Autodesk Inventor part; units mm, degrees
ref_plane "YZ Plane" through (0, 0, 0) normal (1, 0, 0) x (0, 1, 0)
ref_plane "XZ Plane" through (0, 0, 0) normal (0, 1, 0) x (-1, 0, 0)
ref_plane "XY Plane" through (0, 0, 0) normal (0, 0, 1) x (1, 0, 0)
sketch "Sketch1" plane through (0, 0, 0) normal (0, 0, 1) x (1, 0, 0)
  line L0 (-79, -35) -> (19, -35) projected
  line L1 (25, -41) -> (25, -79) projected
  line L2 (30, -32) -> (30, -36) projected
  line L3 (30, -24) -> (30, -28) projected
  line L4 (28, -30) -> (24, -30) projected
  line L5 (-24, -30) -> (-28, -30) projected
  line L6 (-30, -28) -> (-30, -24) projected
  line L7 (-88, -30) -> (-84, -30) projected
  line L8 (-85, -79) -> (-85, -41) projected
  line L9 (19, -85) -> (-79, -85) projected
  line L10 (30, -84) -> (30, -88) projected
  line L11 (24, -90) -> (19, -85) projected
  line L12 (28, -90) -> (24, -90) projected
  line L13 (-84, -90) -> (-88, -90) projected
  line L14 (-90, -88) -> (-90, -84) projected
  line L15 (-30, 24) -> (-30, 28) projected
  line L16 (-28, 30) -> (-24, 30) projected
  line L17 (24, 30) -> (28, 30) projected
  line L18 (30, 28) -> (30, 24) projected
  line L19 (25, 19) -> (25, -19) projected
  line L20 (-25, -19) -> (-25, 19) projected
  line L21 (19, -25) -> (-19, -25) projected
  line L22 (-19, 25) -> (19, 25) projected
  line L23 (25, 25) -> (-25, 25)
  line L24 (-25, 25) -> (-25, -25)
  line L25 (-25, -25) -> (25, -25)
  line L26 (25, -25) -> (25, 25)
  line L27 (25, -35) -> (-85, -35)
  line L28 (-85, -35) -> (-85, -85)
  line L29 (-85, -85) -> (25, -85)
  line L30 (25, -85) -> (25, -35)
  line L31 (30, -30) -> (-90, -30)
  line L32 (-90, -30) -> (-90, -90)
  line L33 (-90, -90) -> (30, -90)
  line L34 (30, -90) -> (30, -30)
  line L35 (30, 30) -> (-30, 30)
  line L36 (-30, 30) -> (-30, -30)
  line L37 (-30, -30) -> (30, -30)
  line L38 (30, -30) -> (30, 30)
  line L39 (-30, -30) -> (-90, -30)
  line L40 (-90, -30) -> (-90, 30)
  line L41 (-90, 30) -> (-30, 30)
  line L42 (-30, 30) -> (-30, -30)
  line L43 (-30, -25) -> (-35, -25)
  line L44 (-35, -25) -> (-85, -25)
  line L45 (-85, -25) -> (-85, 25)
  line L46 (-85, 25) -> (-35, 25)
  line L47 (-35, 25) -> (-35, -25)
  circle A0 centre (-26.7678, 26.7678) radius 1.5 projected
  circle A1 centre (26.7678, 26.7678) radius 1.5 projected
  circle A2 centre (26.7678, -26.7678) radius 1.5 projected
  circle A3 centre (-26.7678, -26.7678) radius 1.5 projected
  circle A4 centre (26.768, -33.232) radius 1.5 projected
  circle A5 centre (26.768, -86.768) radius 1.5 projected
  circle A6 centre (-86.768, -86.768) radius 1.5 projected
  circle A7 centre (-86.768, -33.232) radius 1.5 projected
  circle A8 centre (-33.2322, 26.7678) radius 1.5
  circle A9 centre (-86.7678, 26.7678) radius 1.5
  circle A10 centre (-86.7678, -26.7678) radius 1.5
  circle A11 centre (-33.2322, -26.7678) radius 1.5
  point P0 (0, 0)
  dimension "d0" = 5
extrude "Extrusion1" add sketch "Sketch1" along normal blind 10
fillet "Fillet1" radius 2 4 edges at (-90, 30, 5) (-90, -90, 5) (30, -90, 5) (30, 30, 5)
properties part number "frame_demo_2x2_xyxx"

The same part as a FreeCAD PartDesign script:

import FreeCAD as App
import Part
import Sketcher

V = App.Vector


def edges_at(feature, points):
    """Names of the edges that pass closest to the given points."""
    edges = feature.Shape.Edges
    near = lambda p: min(range(len(edges)), key=lambda i: edges[i].distToShape(Part.Vertex(*p))[0])
    return sorted({f"Edge{near(p) + 1}" for p in points})


def add_polygon(sketch, points):
    """Adds a closed chain of lines whose ends are joined by coincident constraints."""
    first, n = sketch.GeometryCount, len(points)
    for a, b in zip(points, points[1:] + points[:1]):
        sketch.addGeometry(Part.LineSegment(App.Vector(*a, 0), App.Vector(*b, 0)), False)
    for i in range(n):
        sketch.addConstraint(Sketcher.Constraint("Coincident", first + i, 2, first + (i + 1) % n, 1))

doc = App.newDocument("Part")
params = doc.addObject("Spreadsheet::Sheet", "Params")
for row, (alias, value) in enumerate([
    ("sketch1_diameter", "3 mm"),
    ("sketch1_width", "6 mm"),
    ("sketch1_width2", "120 mm"),
    ("sketch1_width3", "50 mm"),
    ("pad1_length", "10 mm"),
    ("fillet_radius", "2 mm"),
], start=1):
    params.set(f"A{row}", alias)
    params.set(f"B{row}", "=" + value)
    params.setAlias(f"B{row}", alias)

body = doc.addObject("PartDesign::Body", "Body")

# Sketch on XY plane
sketch1 = body.newObject("Sketcher::SketchObject", "Sketch")
sketch1.AttachmentSupport = (doc.getObject("XY_Plane"), [""])
sketch1.MapMode = "FlatFace"
add_polygon(sketch1, [(24, -90), (30, -90), (30, 30), (-90, 30), (-90, -90)])  # lines 0-4
sketch1.addGeometry(Part.Circle(V(-86.8, -86.8, 0), V(0, 0, 1), 1.5), False)  # 5
sketch1.addGeometry(Part.Circle(V(-86.8, -33.2, 0), V(0, 0, 1), 1.5), False)  # 6
sketch1.addGeometry(Part.Circle(V(26.8, -86.8, 0), V(0, 0, 1), 1.5), False)  # 7
add_polygon(sketch1, [(-85, -35), (25, -35), (25, -85), (19, -85), (-85, -85)])  # lines 8-12
sketch1.addGeometry(Part.Circle(V(26.8, -33.2, 0), V(0, 0, 1), 1.5), False)  # 13
add_polygon(sketch1, [(-35, -25), (-85, -25), (-85, 25), (-35, 25)])  # lines 14-17
sketch1.addGeometry(Part.Circle(V(-33.2, 26.8, 0), V(0, 0, 1), 1.5), False)  # 18
sketch1.addGeometry(Part.Circle(V(-86.8, -26.8, 0), V(0, 0, 1), 1.5), False)  # 19
sketch1.addGeometry(Part.Circle(V(-33.2, -26.8, 0), V(0, 0, 1), 1.5), False)  # 20
sketch1.addGeometry(Part.Circle(V(-86.8, 26.8, 0), V(0, 0, 1), 1.5), False)  # 21
add_polygon(sketch1, [(-25, -25), (-25, 25), (25, 25), (25, -25)])  # lines 22-25
sketch1.addGeometry(Part.Circle(V(26.8, 26.8, 0), V(0, 0, 1), 1.5), False)  # 26
sketch1.addGeometry(Part.Circle(V(-26.8, -26.8, 0), V(0, 0, 1), 1.5), False)  # 27
sketch1.addGeometry(Part.Circle(V(26.8, -26.8, 0), V(0, 0, 1), 1.5), False)  # 28
sketch1.addGeometry(Part.Circle(V(-26.8, 26.8, 0), V(0, 0, 1), 1.5), False)  # 29
sketch1.addConstraint([
    Sketcher.Constraint("Horizontal", 0),
    Sketcher.Constraint("Vertical", 1),
    Sketcher.Constraint("Horizontal", 2),
    Sketcher.Constraint("Vertical", 3),
    Sketcher.Constraint("Horizontal", 4),
    Sketcher.Constraint("Horizontal", 8),
    Sketcher.Constraint("Vertical", 9),
    Sketcher.Constraint("Horizontal", 10),
    Sketcher.Constraint("Horizontal", 11),
    Sketcher.Constraint("Vertical", 12),
    Sketcher.Constraint("Horizontal", 14),
    Sketcher.Constraint("Vertical", 15),
    Sketcher.Constraint("Horizontal", 16),
    Sketcher.Constraint("Vertical", 17),
    Sketcher.Constraint("Vertical", 22),
    Sketcher.Constraint("Horizontal", 23),
    Sketcher.Constraint("Vertical", 24),
    Sketcher.Constraint("Horizontal", 25),
    Sketcher.Constraint("Equal", 5, 6),
    Sketcher.Constraint("Equal", 6, 7),
    Sketcher.Constraint("Equal", 7, 13),
    Sketcher.Constraint("Equal", 13, 18),
    Sketcher.Constraint("Equal", 18, 19),
    Sketcher.Constraint("Equal", 19, 20),
    Sketcher.Constraint("Equal", 20, 21),
    Sketcher.Constraint("Equal", 21, 26),
    Sketcher.Constraint("Equal", 26, 27),
    Sketcher.Constraint("Equal", 27, 28),
    Sketcher.Constraint("Equal", 28, 29),
    Sketcher.Constraint("Symmetric", 26, 3, 27, 3, -1, 1),
    Sketcher.Constraint("Symmetric", 28, 3, 29, 3, -1, 1),
    Sketcher.Constraint("Symmetric", 22, 2, 24, 2, -1, 1),
    Sketcher.Constraint("Symmetric", 27, 3, 28, 3, -2),
    Sketcher.Constraint("Symmetric", 18, 3, 20, 3, -1),
    Sketcher.Constraint("Symmetric", 19, 3, 21, 3, -1),
    Sketcher.Constraint("Horizontal", 5, 3, 7, 3),
    Sketcher.Constraint("Horizontal", 6, 3, 13, 3),
    Sketcher.Constraint("Horizontal", 19, 3, 20, 3),
    Sketcher.Constraint("Horizontal", 21, 3, 26, 3),
    Sketcher.Constraint("Horizontal", 16, 2, 22, 2),
    Sketcher.Constraint("Horizontal", 17, 2, 24, 2),
    Sketcher.Constraint("Vertical", 5, 3, 6, 3),
    Sketcher.Constraint("Vertical", 7, 3, 13, 3),
    Sketcher.Constraint("Vertical", 13, 3, 26, 3),
    Sketcher.Constraint("Vertical", 12, 2, 14, 2),
    Sketcher.Constraint("Vertical", 9, 2, 23, 2),
    Sketcher.Constraint("Equal", 0, 10),
    Sketcher.Constraint("Equal", 16, 23),
    Sketcher.Constraint("Equal", 2, 1),
    Sketcher.Constraint("Equal", 25, 9),
    Sketcher.Constraint("Equal", 12, 15),
    Sketcher.Constraint("Diameter", 5, 3.0),
    Sketcher.Constraint("DistanceY", 4, 2, 9, 2, 5.0),
    Sketcher.Constraint("DistanceX", 9, 2, 0, 2, 5.0),
    Sketcher.Constraint("DistanceX", 3, 2, 11, 2, 5.0),
    Sketcher.Constraint("DistanceY", 15, 2, 2, 2, 5.0),
    Sketcher.Constraint("DistanceX", 0, 1, 0, 2, 6.0),
    Sketcher.Constraint("DistanceX", 2, 2, 2, 1, 120.0),
    Sketcher.Constraint("DistanceX", 14, 2, 14, 1, 50.0),
    Sketcher.Constraint("DistanceX", 18, 3, 26, 3, 60.0),
    Sketcher.Constraint("DistanceX", 19, 3, 27, 3, 60.0),
    Sketcher.Constraint("DistanceX", 5, 3, -1, 1, 86.768),
    Sketcher.Constraint("DistanceY", 5, 3, -1, 1, 86.768),
    Sketcher.Constraint("DistanceY", 6, 3, -1, 1, 33.232),
    Sketcher.Constraint("DistanceX", -1, 1, 7, 3, 26.768),
    Sketcher.Constraint("DistanceY", -1, 1, 18, 3, 26.7678),
])
sketch1.setExpression("Constraints[69]", "Params.sketch1_diameter")
sketch1.setExpression("Constraints[74]", "Params.sketch1_width")
sketch1.setExpression("Constraints[75]", "Params.sketch1_width2")
sketch1.setExpression("Constraints[76]", "Params.sketch1_width3")
pad1 = body.newObject("PartDesign::Pad", "Pad")
pad1.Profile = sketch1
pad1.setExpression("Length", "Params.pad1_length")
doc.recompute()

fillet = body.newObject("PartDesign::Fillet", "Fillet")
fillet.Base = (pad1, edges_at(pad1, [
    (-90, 30, 5),
    (-90, -90, 5),
    (30, -90, 5),
    (30, 30, 5),
]))
fillet.setExpression("Radius", "Params.fillet_radius")

doc.recompute()
